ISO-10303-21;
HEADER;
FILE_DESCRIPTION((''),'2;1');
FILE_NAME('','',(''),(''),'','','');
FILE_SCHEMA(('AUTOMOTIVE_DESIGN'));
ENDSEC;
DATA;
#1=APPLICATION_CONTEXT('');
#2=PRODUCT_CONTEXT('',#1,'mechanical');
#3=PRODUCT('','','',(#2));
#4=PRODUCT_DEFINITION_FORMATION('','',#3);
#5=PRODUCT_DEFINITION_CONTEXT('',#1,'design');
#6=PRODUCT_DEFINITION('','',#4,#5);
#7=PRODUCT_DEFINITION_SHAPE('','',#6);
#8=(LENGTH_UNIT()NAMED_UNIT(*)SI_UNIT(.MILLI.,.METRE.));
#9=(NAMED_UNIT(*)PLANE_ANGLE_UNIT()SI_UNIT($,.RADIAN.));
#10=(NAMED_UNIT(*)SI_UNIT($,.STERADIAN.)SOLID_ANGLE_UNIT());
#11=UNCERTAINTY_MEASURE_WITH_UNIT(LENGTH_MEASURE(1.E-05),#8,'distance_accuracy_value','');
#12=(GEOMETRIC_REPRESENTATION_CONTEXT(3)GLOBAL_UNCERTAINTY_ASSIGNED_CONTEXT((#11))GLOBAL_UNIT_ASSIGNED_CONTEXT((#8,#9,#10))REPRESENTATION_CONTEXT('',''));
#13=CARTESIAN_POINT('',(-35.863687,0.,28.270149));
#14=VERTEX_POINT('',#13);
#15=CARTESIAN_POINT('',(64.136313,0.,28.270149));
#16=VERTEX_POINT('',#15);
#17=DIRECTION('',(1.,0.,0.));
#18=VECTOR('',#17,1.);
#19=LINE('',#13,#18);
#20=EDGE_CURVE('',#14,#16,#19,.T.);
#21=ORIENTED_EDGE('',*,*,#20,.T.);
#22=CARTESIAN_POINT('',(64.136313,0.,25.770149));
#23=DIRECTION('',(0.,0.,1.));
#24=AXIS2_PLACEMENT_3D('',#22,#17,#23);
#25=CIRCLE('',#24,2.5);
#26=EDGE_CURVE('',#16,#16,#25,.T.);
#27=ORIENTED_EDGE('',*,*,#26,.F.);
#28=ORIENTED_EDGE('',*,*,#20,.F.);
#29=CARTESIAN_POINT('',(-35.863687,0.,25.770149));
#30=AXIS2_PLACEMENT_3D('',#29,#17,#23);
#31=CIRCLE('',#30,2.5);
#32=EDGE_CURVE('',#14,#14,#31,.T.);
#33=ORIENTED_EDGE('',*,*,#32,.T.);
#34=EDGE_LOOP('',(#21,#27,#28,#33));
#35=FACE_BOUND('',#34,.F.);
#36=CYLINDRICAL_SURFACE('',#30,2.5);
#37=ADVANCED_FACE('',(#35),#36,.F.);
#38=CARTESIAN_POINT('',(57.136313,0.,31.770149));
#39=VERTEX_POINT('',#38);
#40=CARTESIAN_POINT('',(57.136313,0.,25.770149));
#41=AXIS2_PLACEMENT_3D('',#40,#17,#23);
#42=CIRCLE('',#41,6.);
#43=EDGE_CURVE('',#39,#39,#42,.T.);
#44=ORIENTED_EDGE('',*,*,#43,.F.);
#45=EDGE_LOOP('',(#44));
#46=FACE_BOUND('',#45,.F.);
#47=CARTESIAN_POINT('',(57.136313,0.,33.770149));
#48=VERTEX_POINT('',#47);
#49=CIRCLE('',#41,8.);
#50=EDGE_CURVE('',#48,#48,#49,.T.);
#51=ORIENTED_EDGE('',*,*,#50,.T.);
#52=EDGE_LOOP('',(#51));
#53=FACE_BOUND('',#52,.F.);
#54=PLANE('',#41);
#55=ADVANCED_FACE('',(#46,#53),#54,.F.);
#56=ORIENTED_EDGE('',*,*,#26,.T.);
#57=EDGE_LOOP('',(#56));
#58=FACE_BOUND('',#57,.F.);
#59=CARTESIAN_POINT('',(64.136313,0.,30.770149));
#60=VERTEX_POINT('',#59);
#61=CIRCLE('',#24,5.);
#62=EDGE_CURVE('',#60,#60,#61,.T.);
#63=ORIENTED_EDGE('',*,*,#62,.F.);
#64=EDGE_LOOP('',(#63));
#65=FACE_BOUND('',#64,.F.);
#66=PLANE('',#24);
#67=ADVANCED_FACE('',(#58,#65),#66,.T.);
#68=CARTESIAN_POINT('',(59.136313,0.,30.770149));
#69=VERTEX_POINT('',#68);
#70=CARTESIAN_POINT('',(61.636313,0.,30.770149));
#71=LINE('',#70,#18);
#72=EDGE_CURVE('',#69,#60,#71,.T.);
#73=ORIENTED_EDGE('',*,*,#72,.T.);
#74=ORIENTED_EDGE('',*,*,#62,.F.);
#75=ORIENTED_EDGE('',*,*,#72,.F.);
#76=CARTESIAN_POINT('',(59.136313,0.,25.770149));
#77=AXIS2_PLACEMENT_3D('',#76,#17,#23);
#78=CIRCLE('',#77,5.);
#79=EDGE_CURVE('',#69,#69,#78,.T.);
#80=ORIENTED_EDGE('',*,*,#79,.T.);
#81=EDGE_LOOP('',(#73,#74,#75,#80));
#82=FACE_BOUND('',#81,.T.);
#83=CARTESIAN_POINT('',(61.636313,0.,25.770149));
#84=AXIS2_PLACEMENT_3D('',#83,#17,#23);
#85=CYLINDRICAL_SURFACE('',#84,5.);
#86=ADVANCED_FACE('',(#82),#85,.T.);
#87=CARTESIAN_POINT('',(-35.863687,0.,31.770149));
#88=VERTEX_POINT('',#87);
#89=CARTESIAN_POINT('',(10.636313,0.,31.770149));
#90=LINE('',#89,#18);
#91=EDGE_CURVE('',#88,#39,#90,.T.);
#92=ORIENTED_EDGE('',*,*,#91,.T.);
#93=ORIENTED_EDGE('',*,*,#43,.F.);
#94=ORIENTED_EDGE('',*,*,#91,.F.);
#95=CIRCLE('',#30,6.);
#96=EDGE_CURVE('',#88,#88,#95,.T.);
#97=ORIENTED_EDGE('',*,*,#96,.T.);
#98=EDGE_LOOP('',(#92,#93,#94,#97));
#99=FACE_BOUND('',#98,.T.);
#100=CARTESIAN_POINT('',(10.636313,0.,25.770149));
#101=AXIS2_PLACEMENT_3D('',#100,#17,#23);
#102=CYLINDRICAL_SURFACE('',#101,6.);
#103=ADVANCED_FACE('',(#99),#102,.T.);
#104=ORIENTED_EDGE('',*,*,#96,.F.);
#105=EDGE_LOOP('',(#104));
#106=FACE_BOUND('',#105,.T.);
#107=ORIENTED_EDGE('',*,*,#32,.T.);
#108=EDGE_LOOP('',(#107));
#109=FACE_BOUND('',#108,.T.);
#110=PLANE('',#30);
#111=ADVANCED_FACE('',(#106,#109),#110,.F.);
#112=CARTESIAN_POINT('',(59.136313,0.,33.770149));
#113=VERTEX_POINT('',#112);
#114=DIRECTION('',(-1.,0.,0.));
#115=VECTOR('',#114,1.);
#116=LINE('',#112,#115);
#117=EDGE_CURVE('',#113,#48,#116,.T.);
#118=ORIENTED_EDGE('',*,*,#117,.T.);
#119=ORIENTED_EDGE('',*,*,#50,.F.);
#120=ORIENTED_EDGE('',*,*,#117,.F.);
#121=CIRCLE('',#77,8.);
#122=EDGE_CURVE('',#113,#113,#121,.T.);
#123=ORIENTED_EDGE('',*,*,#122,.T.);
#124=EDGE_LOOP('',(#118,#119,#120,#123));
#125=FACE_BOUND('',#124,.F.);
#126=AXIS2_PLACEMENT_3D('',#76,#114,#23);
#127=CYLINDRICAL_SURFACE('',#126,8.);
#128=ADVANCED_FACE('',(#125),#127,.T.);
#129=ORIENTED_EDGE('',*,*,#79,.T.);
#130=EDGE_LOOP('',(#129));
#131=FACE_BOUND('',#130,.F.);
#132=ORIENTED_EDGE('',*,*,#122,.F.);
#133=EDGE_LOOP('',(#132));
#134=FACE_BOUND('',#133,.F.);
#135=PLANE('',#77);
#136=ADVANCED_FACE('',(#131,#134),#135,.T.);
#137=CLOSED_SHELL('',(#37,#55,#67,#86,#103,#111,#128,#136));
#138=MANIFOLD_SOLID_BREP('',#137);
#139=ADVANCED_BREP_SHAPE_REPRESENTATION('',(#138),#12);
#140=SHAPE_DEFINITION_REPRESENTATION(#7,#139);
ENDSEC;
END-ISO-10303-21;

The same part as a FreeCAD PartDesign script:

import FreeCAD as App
import Part
import Sketcher
Q = App.Units.Quantity


def add_polygon(sketch, points):
    """Adds a closed chain of lines whose ends are joined by coincident constraints."""
    first, n = sketch.GeometryCount, len(points)
    for a, b in zip(points, points[1:] + points[:1]):
        sketch.addGeometry(Part.LineSegment(App.Vector(*a, 0), App.Vector(*b, 0)), False)
    for i in range(n):
        sketch.addConstraint(Sketcher.Constraint("Coincident", first + i, 2, first + (i + 1) % n, 1))

doc = App.newDocument("Part")
params = doc.addObject("Spreadsheet::Sheet", "Params")
for row, (alias, value) in enumerate([
    ("sketch1_width", "100 mm"),
    ("sketch1_width2", "5 mm"),
    ("sketch1_width3", "2 mm"),
    ("sketch1_height", "3 mm"),
    ("sketch1_height2", "3.5 mm"),
    ("revolution_angle", "360 deg"),
], start=1):
    params.set(f"A{row}", alias)
    params.set(f"B{row}", "=" + value)
    params.setAlias(f"B{row}", alias)

body = doc.addObject("PartDesign::Body", "Body")

# Sketch on XZ plane
sketch1 = doc.addObject("Sketcher::SketchObject", "Sketch")
body.addObject(sketch1)
sketch1.AttachmentSupport = (doc.XZ_Plane, [""])
sketch1.MapMode = "FlatFace"
add_polygon(sketch1, [(-35.9, 31.8), (-35.9, 28.3), (64.1, 28.3), (64.1, 30.8), (59.1, 30.8), (59.1, 33.8), (57.1, 33.8), (57.1, 31.8)])  # lines 0-7
sketch1.addGeometry(Part.LineSegment(App.Vector(-35.9, 25.8, 0), App.Vector(64.1, 25.8, 0)), True)  # axis
sketch1.addConstraint([
    Sketcher.Constraint("Vertical", 0),
    Sketcher.Constraint("Horizontal", 1),
    Sketcher.Constraint("Vertical", 2),
    Sketcher.Constraint("Horizontal", 3),
    Sketcher.Constraint("Vertical", 4),
    Sketcher.Constraint("Horizontal", 5),
    Sketcher.Constraint("Vertical", 6),
    Sketcher.Constraint("Horizontal", 7),
    Sketcher.Constraint("Horizontal", 8),
    Sketcher.Constraint("Vertical", 7, 2, 8, 1),
    Sketcher.Constraint("Vertical", 2, 2, 8, 2),
    Sketcher.Constraint("Equal", 5, 6),
    Sketcher.Constraint("DistanceX", 1, 1, 1, 2, Q("100 mm")),
    Sketcher.Constraint("DistanceX", 3, 2, 3, 1, Q("5 mm")),
    Sketcher.Constraint("DistanceX", 5, 2, 5, 1, Q("2 mm")),
    Sketcher.Constraint("DistanceY", 4, 1, 4, 2, Q("3 mm")),
    Sketcher.Constraint("DistanceY", 0, 2, 0, 1, Q("3.5 mm")),
    Sketcher.Constraint("DistanceY", 8, 1, 7, 2, Q("6 mm")),
    Sketcher.Constraint("DistanceY", -1, 1, 0, 2, Q("28.270149 mm")),
    Sketcher.Constraint("DistanceX", 0, 2, -1, 1, Q("35.863687 mm")),
])
sketch1.setExpression("Constraints[20]", "Params.sketch1_width")
sketch1.setExpression("Constraints[21]", "Params.sketch1_width2")
sketch1.setExpression("Constraints[22]", "Params.sketch1_width3")
sketch1.setExpression("Constraints[23]", "Params.sketch1_height")
sketch1.setExpression("Constraints[24]", "Params.sketch1_height2")
revolution = doc.addObject("PartDesign::Revolution", "Revolution")
body.addObject(revolution)
revolution.Profile = sketch1
revolution.ReferenceAxis = (sketch1, ["Axis0"])
revolution.setExpression("Angle", "Params.revolution_angle")

doc.recompute()
